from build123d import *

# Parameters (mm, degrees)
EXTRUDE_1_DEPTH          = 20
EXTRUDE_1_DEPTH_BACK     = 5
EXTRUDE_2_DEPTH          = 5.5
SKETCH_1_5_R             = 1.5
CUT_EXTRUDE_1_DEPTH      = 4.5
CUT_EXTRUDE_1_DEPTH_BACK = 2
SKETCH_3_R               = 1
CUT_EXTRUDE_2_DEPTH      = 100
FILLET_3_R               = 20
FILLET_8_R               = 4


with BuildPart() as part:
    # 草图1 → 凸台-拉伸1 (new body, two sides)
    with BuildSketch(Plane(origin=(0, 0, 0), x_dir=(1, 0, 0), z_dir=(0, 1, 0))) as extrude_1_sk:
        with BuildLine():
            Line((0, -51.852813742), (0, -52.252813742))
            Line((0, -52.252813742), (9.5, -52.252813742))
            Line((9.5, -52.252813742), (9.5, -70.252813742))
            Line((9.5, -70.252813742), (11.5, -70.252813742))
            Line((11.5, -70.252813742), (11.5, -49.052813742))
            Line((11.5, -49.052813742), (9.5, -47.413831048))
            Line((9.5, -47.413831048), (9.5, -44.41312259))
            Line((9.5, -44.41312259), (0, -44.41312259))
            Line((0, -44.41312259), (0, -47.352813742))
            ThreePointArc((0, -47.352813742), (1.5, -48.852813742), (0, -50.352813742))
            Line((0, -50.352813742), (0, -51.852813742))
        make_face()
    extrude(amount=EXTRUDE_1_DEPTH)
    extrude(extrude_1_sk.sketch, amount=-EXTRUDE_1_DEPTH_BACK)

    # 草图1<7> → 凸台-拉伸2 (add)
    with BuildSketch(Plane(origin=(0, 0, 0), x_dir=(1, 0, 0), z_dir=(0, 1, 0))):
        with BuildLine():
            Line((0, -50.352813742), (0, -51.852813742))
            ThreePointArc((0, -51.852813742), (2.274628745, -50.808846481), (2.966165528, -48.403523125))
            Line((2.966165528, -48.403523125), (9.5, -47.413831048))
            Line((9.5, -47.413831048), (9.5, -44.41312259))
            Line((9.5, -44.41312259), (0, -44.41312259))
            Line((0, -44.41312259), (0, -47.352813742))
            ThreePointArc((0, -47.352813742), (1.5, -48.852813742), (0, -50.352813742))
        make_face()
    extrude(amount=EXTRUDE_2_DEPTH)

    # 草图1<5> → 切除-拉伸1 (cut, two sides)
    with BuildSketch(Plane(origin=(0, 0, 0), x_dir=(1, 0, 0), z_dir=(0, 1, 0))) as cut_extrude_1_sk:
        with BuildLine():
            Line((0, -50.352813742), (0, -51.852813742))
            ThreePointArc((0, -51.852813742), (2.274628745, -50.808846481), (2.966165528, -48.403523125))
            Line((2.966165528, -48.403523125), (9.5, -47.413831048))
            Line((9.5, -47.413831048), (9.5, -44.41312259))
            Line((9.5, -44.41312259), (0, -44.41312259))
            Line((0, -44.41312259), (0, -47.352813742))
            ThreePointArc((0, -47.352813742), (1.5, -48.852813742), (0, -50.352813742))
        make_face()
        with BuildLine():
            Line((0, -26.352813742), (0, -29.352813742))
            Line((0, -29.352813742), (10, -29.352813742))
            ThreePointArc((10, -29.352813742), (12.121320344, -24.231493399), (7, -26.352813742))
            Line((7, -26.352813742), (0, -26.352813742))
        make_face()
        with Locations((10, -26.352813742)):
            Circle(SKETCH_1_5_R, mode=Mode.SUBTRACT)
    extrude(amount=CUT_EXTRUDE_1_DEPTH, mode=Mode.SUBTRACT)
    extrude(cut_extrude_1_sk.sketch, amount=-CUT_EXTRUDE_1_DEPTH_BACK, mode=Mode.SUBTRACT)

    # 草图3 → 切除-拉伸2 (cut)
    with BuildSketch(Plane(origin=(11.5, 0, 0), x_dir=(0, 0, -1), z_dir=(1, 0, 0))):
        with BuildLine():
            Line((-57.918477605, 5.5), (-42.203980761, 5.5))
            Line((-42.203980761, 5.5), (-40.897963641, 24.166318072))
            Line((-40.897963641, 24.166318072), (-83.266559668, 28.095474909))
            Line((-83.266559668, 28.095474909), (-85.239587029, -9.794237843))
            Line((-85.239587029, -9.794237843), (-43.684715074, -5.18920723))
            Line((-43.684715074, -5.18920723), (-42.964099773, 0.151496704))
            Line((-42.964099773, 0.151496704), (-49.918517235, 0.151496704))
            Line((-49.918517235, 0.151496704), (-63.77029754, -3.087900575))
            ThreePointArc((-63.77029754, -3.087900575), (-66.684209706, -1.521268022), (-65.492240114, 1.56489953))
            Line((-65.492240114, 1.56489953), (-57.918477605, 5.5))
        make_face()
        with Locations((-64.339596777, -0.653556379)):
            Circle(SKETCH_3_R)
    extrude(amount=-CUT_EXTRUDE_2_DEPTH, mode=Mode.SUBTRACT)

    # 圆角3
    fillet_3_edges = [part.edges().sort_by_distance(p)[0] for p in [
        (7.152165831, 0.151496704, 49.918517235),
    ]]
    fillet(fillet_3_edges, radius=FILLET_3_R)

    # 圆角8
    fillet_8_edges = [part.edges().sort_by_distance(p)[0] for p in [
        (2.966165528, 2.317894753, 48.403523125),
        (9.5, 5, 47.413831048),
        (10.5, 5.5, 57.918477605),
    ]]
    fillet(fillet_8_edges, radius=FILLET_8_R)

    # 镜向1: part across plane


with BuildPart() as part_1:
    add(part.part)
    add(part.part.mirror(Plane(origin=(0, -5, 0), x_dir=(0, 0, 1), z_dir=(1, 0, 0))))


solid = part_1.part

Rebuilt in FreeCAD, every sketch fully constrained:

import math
import FreeCAD as App
import Part
import Sketcher

V = App.Vector
Q = App.Units.Quantity


def edges_at(feature, points):
    """Names of the edges that pass closest to the given points."""
    edges = feature.Shape.Edges
    near = lambda p: min(range(len(edges)), key=lambda i: edges[i].distToShape(Part.Vertex(*p))[0])
    return sorted({f"Edge{near(p) + 1}" for p in points})

doc = App.newDocument("Part")
params = doc.addObject("Spreadsheet::Sheet", "Params")
for row, (alias, value) in enumerate([
    ("sketch1_radius", "1.5 mm"),
    ("sketch1_width", "2 mm"),
    ("sketch1_height", "18 mm"),
    ("sketch1_width2", "9.5 mm"),
    ("sketch1_height2", "21.2 mm"),
    ("pad1_length", "20 mm"),
    ("pad1_length2", "5 mm"),
    ("sketch2_radius", "3 mm"),
    ("sketch2_radius2", "1.5 mm"),
    ("sketch2_width", "9.5 mm"),
    ("pad2_length", "5.5 mm"),
    ("sketch3_diameter", "3 mm"),
    ("sketch3_radius", "3 mm"),
    ("sketch3_width", "10 mm"),
    ("sketch3_width2", "9.5 mm"),
    ("pocket1_length", "4.5 mm"),
    ("pocket1_length2", "2 mm"),
    ("sketch4_diameter", "2 mm"),
    ("pocket2_length", "100 mm"),
    ("fillet_radius", "20 mm"),
    ("fillet2_radius", "4 mm"),
], start=1):
    params.set(f"A{row}", alias)
    params.set(f"B{row}", "=" + value)
    params.setAlias(f"B{row}", alias)

body = doc.addObject("PartDesign::Body", "Body")

# Sketch on XZ plane
sketch1 = body.newObject("Sketcher::SketchObject", "Sketch")
sketch1.AttachmentSupport = (doc.getObject("XZ_Plane"), [""])
sketch1.MapMode = "FlatFace"
sketch1.addGeometry([
    Part.LineSegment(V(0, 52.3, 0), V(9.5, 52.3, 0)),  # 0
    Part.LineSegment(V(9.5, 52.3, 0), V(9.5, 70.3, 0)),  # 1
    Part.LineSegment(V(9.5, 70.3, 0), V(11.5, 70.3, 0)),  # 2
    Part.LineSegment(V(11.5, 70.3, 0), V(11.5, 49.1, 0)),  # 3
    Part.LineSegment(V(11.5, 49.1, 0), V(9.5, 47.4, 0)),  # 4
    Part.LineSegment(V(9.5, 47.4, 0), V(9.5, 44.4, 0)),  # 5
    Part.LineSegment(V(9.5, 44.4, 0), V(0, 44.4, 0)),  # 6
    Part.LineSegment(V(0, 44.4, 0), V(0, 47.4, 0)),  # 7
    Part.ArcOfCircle(Part.Circle(V(0, 48.9, 0), V(0, 0, 1), 1.5), math.radians(-90), math.radians(90)),  # 8
    Part.LineSegment(V(0, 50.4, 0), V(0, 52.3, 0)),  # 9
], False)
sketch1.addConstraint([
    Sketcher.Constraint("Coincident", 0, 2, 1, 1),
    Sketcher.Constraint("Coincident", 1, 2, 2, 1),
    Sketcher.Constraint("Coincident", 2, 2, 3, 1),
    Sketcher.Constraint("Coincident", 3, 2, 4, 1),
    Sketcher.Constraint("Coincident", 4, 2, 5, 1),
    Sketcher.Constraint("Coincident", 5, 2, 6, 1),
    Sketcher.Constraint("Coincident", 6, 2, 7, 1),
    Sketcher.Constraint("Coincident", 7, 2, 8, 1),
    Sketcher.Constraint("Coincident", 8, 2, 9, 1),
    Sketcher.Constraint("Coincident", 9, 2, 0, 1),
    Sketcher.Constraint("Horizontal", 0),
    Sketcher.Constraint("Vertical", 1),
    Sketcher.Constraint("Horizontal", 2),
    Sketcher.Constraint("Vertical", 3),
    Sketcher.Constraint("Vertical", 5),
    Sketcher.Constraint("Horizontal", 6),
    Sketcher.Constraint("Vertical", 7),
    Sketcher.Constraint("Vertical", 9),
    Sketcher.Constraint("PointOnObject", 8, 3, -2),
    Sketcher.Constraint("PointOnObject", 6, 2, -2),
    Sketcher.Constraint("PointOnObject", 8, 2, -2),
    Sketcher.Constraint("Vertical", 1, 2, 4, 2),
    Sketcher.Constraint("Radius", 8, Q("1.5 mm")),
    Sketcher.Constraint("DistanceX", 2, 1, 2, 2, Q("2 mm")),
    Sketcher.Constraint("DistanceY", 1, 1, 1, 2, Q("18 mm")),
    Sketcher.Constraint("DistanceX", 0, 1, 0, 2, Q("9.5 mm")),
    Sketcher.Constraint("DistanceY", 3, 2, 3, 1, Q("21.2 mm")),
    Sketcher.Constraint("DistanceY", 9, 1, 9, 2, Q("1.9 mm")),
    Sketcher.Constraint("DistanceY", 5, 2, 5, 1, Q("3.000708 mm")),
    Sketcher.Constraint("DistanceY", 7, 1, 7, 2, Q("2.939691 mm")),
    Sketcher.Constraint("DistanceY", -1, 1, 4, 2, Q("47.413831 mm")),
])
sketch1.setExpression("Constraints[22]", "Params.sketch1_radius")
sketch1.setExpression("Constraints[23]", "Params.sketch1_width")
sketch1.setExpression("Constraints[24]", "Params.sketch1_height")
sketch1.setExpression("Constraints[25]", "Params.sketch1_width2")
sketch1.setExpression("Constraints[26]", "Params.sketch1_height2")
pad1 = body.newObject("PartDesign::Pad", "Pad")
pad1.Profile = sketch1
pad1.Type = "TwoLengths"
pad1.setExpression("Length", "Params.pad1_length")
pad1.setExpression("Length2", "Params.pad1_length2")
pad1.Reversed = True

# Sketch on XZ plane
sketch2 = body.newObject("Sketcher::SketchObject", "Sketch001")
sketch2.AttachmentSupport = (doc.getObject("XZ_Plane"), [""])
sketch2.MapMode = "FlatFace"
sketch2.addGeometry([
    Part.LineSegment(V(0, 50.4, 0), V(0, 51.9, 0)),  # 0
    Part.ArcOfCircle(Part.Circle(V(0, 48.9, 0), V(0, 0, 1), 3), math.radians(-9), math.radians(90)),  # 1
    Part.LineSegment(V(3, 48.4, 0), V(9.5, 47.4, 0)),  # 2
    Part.LineSegment(V(9.5, 47.4, 0), V(9.5, 44.4, 0)),  # 3
    Part.LineSegment(V(9.5, 44.4, 0), V(0, 44.4, 0)),  # 4
    Part.LineSegment(V(0, 44.4, 0), V(0, 47.4, 0)),  # 5
    Part.ArcOfCircle(Part.Circle(V(0, 48.9, 0), V(0, 0, 1), 1.5), math.radians(-90), math.radians(90)),  # 6
], False)
sketch2.addConstraint([
    Sketcher.Constraint("Coincident", 0, 2, 1, 2),
    Sketcher.Constraint("Coincident", 1, 1, 2, 1),
    Sketcher.Constraint("Coincident", 2, 2, 3, 1),
    Sketcher.Constraint("Coincident", 3, 2, 4, 1),
    Sketcher.Constraint("Coincident", 4, 2, 5, 1),
    Sketcher.Constraint("Coincident", 5, 2, 6, 1),
    Sketcher.Constraint("Coincident", 6, 2, 0, 1),
    Sketcher.Constraint("Vertical", 0),
    Sketcher.Constraint("Vertical", 3),
    Sketcher.Constraint("Horizontal", 4),
    Sketcher.Constraint("Vertical", 5),
    Sketcher.Constraint("Coincident", 6, 3, 1, 3),
    Sketcher.Constraint("PointOnObject", 1, 3, -2),
    Sketcher.Constraint("PointOnObject", 0, 2, -2),
    Sketcher.Constraint("PointOnObject", 4, 2, -2),
    Sketcher.Constraint("Radius", 1, Q("3 mm")),
    Sketcher.Constraint("Radius", 6, Q("1.5 mm")),
    Sketcher.Constraint("DistanceX", 4, 2, 4, 1, Q("9.5 mm")),
    Sketcher.Constraint("DistanceY", 3, 2, 3, 1, Q("3.000708 mm")),
    Sketcher.Constraint("DistanceY", 5, 1, 5, 2, Q("2.939691 mm")),
    Sketcher.Constraint("DistanceY", 3, 2, 1, 1, Q("3.990401 mm")),
    Sketcher.Constraint("DistanceY", -1, 1, 2, 2, Q("47.413831 mm")),
])
sketch2.setExpression("Constraints[15]", "Params.sketch2_radius")
sketch2.setExpression("Constraints[16]", "Params.sketch2_radius2")
sketch2.setExpression("Constraints[17]", "Params.sketch2_width")
pad2 = body.newObject("PartDesign::Pad", "Pad001")
pad2.Profile = sketch2
pad2.setExpression("Length", "Params.pad2_length")
pad2.Reversed = True

# Sketch on XZ plane
sketch3 = body.newObject("Sketcher::SketchObject", "Sketch002")
sketch3.AttachmentSupport = (doc.getObject("XZ_Plane"), [""])
sketch3.MapMode = "FlatFace"
sketch3.addGeometry([
    Part.LineSegment(V(0, 50.4, 0), V(0, 51.9, 0)),  # 0
    Part.ArcOfCircle(Part.Circle(V(0, 48.9, 0), V(0, 0, 1), 3), math.radians(-9), math.radians(90)),  # 1
    Part.LineSegment(V(3, 48.4, 0), V(9.5, 47.4, 0)),  # 2
    Part.LineSegment(V(9.5, 47.4, 0), V(9.5, 44.4, 0)),  # 3
    Part.LineSegment(V(9.5, 44.4, 0), V(0, 44.4, 0)),  # 4
    Part.LineSegment(V(0, 44.4, 0), V(0, 47.4, 0)),  # 5
    Part.ArcOfCircle(Part.Circle(V(0, 48.9, 0), V(0, 0, 1), 1.5), math.radians(-90), math.radians(90)),  # 6
    Part.LineSegment(V(0, 26.4, 0), V(0, 29.4, 0)),  # 7
    Part.LineSegment(V(0, 29.4, 0), V(10, 29.4, 0)),  # 8
    Part.ArcOfCircle(Part.Circle(V(10, 26.4, 0), V(0, 0, 1), 3), math.radians(180), math.radians(450)),  # 9
    Part.LineSegment(V(7, 26.4, 0), V(0, 26.4, 0)),  # 10
    Part.Circle(V(10, 26.4, 0), V(0, 0, 1), 1.5),  # 11
], False)
sketch3.addConstraint([
    Sketcher.Constraint("Coincident", 0, 2, 1, 2),
    Sketcher.Constraint("Coincident", 1, 1, 2, 1),
    Sketcher.Constraint("Coincident", 2, 2, 3, 1),
    Sketcher.Constraint("Coincident", 3, 2, 4, 1),
    Sketcher.Constraint("Coincident", 4, 2, 5, 1),
    Sketcher.Constraint("Coincident", 5, 2, 6, 1),
    Sketcher.Constraint("Coincident", 6, 2, 0, 1),
    Sketcher.Constraint("Coincident", 7, 2, 8, 1),
    Sketcher.Constraint("Tangent", 8, 2, 9, 2),
    Sketcher.Constraint("Coincident", 9, 1, 10, 1),
    Sketcher.Constraint("Coincident", 10, 2, 7, 1),
    Sketcher.Constraint("Vertical", 0),
    Sketcher.Constraint("Vertical", 3),
    Sketcher.Constraint("Horizontal", 4),
    Sketcher.Constraint("Vertical", 5),
    Sketcher.Constraint("Vertical", 7),
    Sketcher.Constraint("Horizontal", 8),
    Sketcher.Constraint("Horizontal", 10),
    Sketcher.Constraint("Coincident", 6, 3, 1, 3),
    Sketcher.Constraint("Coincident", 11, 3, 9, 3),
    Sketcher.Constraint("Equal", 1, 9),
    Sketcher.Constraint("Equal", 6, 11),
    Sketcher.Constraint("PointOnObject", 1, 3, -2),
    Sketcher.Constraint("PointOnObject", 0, 2, -2),
    Sketcher.Constraint("PointOnObject", 4, 2, -2),
    Sketcher.Constraint("PointOnObject", 7, 2, -2),
    Sketcher.Constraint("Horizontal", 11, 3, 9, 1),
    Sketcher.Constraint("Diameter", 11, Q("3 mm")),
    Sketcher.Constraint("Radius", 1, Q("3 mm")),
    Sketcher.Constraint("DistanceX", 8, 1, 8, 2, Q("10 mm")),
    Sketcher.Constraint("DistanceX", 4, 2, 4, 1, Q("9.5 mm")),
    Sketcher.Constraint("DistanceY", 7, 2, 5, 2, Q("18 mm")),
    Sketcher.Constraint("DistanceY", 3, 2, 3, 1, Q("3.000708 mm")),
    Sketcher.Constraint("DistanceY", 5, 1, 5, 2, Q("2.939691 mm")),
    Sketcher.Constraint("DistanceY", 3, 2, 1, 1, Q("3.990401 mm")),
    Sketcher.Constraint("DistanceY", -1, 1, 2, 2, Q("47.413831 mm")),
])
sketch3.setExpression("Constraints[27]", "Params.sketch3_diameter")
sketch3.setExpression("Constraints[28]", "Params.sketch3_radius")
sketch3.setExpression("Constraints[29]", "Params.sketch3_width")
sketch3.setExpression("Constraints[30]", "Params.sketch3_width2")
pocket1 = body.newObject("PartDesign::Pocket", "Pocket")
pocket1.Profile = sketch3
pocket1.Type = "TwoLengths"
pocket1.setExpression("Length", "Params.pocket1_length")
pocket1.setExpression("Length2", "Params.pocket1_length2")

# Sketch on YZ plane
sketch4 = body.newObject("Sketcher::SketchObject", "Sketch003")
sketch4.AttachmentSupport = (doc.getObject("YZ_Plane"), [""])
sketch4.MapMode = "FlatFace"
sketch4.AttachmentOffset = App.Placement(V(0, 0, 11.5), App.Rotation())
sketch4.addGeometry([
    Part.LineSegment(V(5.5, 57.918478, 0), V(5.5, 42.203981, 0)),  # 0
    Part.LineSegment(V(5.5, 42.203981, 0), V(24.166318, 40.897964, 0)),  # 1
    Part.LineSegment(V(24.166318, 40.897964, 0), V(28.095475, 83.26656, 0)),  # 2
    Part.LineSegment(V(28.095475, 83.26656, 0), V(-9.794238, 85.239587, 0)),  # 3
    Part.LineSegment(V(-9.794238, 85.239587, 0), V(-5.189207, 43.684715, 0)),  # 4
    Part.LineSegment(V(-5.189207, 43.684715, 0), V(0.151497, 42.9641, 0)),  # 5
    Part.LineSegment(V(0.151497, 42.9641, 0), V(0.151497, 49.918517, 0)),  # 6
    Part.LineSegment(V(0.151497, 49.918517, 0), V(-3.087901, 63.770298, 0)),  # 7
    Part.ArcOfCircle(Part.Circle(V(-0.653556, 64.339597, 0), V(0, 0, 1), 2.500027), math.radians(27.455039), math.radians(193.162715)),  # 8
    Part.LineSegment(V(1.5649, 65.49224, 0), V(5.5, 57.918478, 0)),  # 9
    Part.Circle(V(-0.653556, 64.339597, 0), V(0, 0, 1), 1),  # 10
], False)
sketch4.addConstraint([
    Sketcher.Constraint("Coincident", 0, 2, 1, 1),
    Sketcher.Constraint("Coincident", 1, 2, 2, 1),
    Sketcher.Constraint("Coincident", 2, 2, 3, 1),
    Sketcher.Constraint("Coincident", 3, 2, 4, 1),
    Sketcher.Constraint("Coincident", 4, 2, 5, 1),
    Sketcher.Constraint("Coincident", 5, 2, 6, 1),
    Sketcher.Constraint("Coincident", 6, 2, 7, 1),
    Sketcher.Constraint("Coincident", 7, 2, 8, 2),
    Sketcher.Constraint("Coincident", 8, 1, 9, 1),
    Sketcher.Constraint("Coincident", 9, 2, 0, 1),
    Sketcher.Constraint("Vertical", 0),
    Sketcher.Constraint("Vertical", 6),
    Sketcher.Constraint("Coincident", 10, 3, 8, 3),
    Sketcher.Constraint("Diameter", 10, Q("2 mm")),
    Sketcher.Constraint("DistanceX", -1, 1, 0, 2, Q("5.5 mm")),
    Sketcher.Constraint("Radius", 8, Q("2.500027 mm")),
    Sketcher.Constraint("Distance", 5, Q("5.389101 mm")),
    Sketcher.Constraint("DistanceY", -1, 1, 5, 2, Q("42.9641 mm")),
    Sketcher.Constraint("DistanceX", 7, 2, -1, 1, Q("3.087901 mm")),
    Sketcher.Constraint("DistanceX", -1, 1, 8, 1, Q("1.5649 mm")),
    Sketcher.Constraint("DistanceY", 7, 2, 8, 3, Q("0.569299 mm")),
    Sketcher.Constraint("Distance", 1, Q("18.711951 mm")),
    Sketcher.Constraint("Distance", 3, Q("37.941049 mm")),
    Sketcher.Constraint("Distance", 9, Q("8.535039 mm")),
    Sketcher.Constraint("DistanceY", 0, 2, 0, 1, Q("15.714497 mm")),
    Sketcher.Constraint("DistanceY", 6, 1, 6, 2, Q("6.954417 mm")),
    Sketcher.Constraint("DistanceY", -1, 1, 0, 2, Q("42.203981 mm")),
    Sketcher.Constraint("DistanceX", -1, 1, 1, 2, Q("24.166318 mm")),
    Sketcher.Constraint("DistanceY", -1, 1, 2, 2, Q("83.26656 mm")),
    Sketcher.Constraint("DistanceX", 10, 3, 2, 2, Q("28.749031 mm")),
    Sketcher.Constraint("DistanceX", 3, 2, 10, 3, Q("9.140681 mm")),
    Sketcher.Constraint("DistanceX", 4, 2, 8, 3, Q("4.535651 mm")),
    Sketcher.Constraint("DistanceY", 4, 2, 8, 3, Q("20.654882 mm")),
])
sketch4.setExpression("Constraints[13]", "Params.sketch4_diameter")
pocket2 = body.newObject("PartDesign::Pocket", "Pocket001")
pocket2.Profile = sketch4
pocket2.setExpression("Length", "Params.pocket2_length")
doc.recompute()

fillet = body.newObject("PartDesign::Fillet", "Fillet")
fillet.Base = (pocket2, edges_at(pocket2, [(7.152, 0.151, 49.919)]))
fillet.setExpression("Radius", "Params.fillet_radius")
doc.recompute()

fillet2 = body.newObject("PartDesign::Fillet", "Fillet001")
fillet2.Base = (fillet, edges_at(fillet, [(2.966, 2.318, 48.404), (9.5, 5, 47.414), (10.5, 5.5, 57.918)]))
fillet2.setExpression("Radius", "Params.fillet2_radius")
body2 = doc.addObject("PartDesign::Body", "Body001")
doc.recompute()

body2.BaseFeature = body
doc.recompute()

mirroring = doc.addObject("Part::Mirroring", "Mirroring")
mirroring.Source = body
mirroring.Base = V(0, -5, 0)
mirroring.Normal = V(1, 0, 0)
body3 = doc.addObject("PartDesign::Body", "Body002")
body3.BaseFeature = mirroring
boolean = body2.newObject("PartDesign::Boolean", "Boolean")
boolean.Type = "Fuse"
boolean.addObjects([body3])
doc.recompute()
mirroring.Visibility = False

doc.recompute()
